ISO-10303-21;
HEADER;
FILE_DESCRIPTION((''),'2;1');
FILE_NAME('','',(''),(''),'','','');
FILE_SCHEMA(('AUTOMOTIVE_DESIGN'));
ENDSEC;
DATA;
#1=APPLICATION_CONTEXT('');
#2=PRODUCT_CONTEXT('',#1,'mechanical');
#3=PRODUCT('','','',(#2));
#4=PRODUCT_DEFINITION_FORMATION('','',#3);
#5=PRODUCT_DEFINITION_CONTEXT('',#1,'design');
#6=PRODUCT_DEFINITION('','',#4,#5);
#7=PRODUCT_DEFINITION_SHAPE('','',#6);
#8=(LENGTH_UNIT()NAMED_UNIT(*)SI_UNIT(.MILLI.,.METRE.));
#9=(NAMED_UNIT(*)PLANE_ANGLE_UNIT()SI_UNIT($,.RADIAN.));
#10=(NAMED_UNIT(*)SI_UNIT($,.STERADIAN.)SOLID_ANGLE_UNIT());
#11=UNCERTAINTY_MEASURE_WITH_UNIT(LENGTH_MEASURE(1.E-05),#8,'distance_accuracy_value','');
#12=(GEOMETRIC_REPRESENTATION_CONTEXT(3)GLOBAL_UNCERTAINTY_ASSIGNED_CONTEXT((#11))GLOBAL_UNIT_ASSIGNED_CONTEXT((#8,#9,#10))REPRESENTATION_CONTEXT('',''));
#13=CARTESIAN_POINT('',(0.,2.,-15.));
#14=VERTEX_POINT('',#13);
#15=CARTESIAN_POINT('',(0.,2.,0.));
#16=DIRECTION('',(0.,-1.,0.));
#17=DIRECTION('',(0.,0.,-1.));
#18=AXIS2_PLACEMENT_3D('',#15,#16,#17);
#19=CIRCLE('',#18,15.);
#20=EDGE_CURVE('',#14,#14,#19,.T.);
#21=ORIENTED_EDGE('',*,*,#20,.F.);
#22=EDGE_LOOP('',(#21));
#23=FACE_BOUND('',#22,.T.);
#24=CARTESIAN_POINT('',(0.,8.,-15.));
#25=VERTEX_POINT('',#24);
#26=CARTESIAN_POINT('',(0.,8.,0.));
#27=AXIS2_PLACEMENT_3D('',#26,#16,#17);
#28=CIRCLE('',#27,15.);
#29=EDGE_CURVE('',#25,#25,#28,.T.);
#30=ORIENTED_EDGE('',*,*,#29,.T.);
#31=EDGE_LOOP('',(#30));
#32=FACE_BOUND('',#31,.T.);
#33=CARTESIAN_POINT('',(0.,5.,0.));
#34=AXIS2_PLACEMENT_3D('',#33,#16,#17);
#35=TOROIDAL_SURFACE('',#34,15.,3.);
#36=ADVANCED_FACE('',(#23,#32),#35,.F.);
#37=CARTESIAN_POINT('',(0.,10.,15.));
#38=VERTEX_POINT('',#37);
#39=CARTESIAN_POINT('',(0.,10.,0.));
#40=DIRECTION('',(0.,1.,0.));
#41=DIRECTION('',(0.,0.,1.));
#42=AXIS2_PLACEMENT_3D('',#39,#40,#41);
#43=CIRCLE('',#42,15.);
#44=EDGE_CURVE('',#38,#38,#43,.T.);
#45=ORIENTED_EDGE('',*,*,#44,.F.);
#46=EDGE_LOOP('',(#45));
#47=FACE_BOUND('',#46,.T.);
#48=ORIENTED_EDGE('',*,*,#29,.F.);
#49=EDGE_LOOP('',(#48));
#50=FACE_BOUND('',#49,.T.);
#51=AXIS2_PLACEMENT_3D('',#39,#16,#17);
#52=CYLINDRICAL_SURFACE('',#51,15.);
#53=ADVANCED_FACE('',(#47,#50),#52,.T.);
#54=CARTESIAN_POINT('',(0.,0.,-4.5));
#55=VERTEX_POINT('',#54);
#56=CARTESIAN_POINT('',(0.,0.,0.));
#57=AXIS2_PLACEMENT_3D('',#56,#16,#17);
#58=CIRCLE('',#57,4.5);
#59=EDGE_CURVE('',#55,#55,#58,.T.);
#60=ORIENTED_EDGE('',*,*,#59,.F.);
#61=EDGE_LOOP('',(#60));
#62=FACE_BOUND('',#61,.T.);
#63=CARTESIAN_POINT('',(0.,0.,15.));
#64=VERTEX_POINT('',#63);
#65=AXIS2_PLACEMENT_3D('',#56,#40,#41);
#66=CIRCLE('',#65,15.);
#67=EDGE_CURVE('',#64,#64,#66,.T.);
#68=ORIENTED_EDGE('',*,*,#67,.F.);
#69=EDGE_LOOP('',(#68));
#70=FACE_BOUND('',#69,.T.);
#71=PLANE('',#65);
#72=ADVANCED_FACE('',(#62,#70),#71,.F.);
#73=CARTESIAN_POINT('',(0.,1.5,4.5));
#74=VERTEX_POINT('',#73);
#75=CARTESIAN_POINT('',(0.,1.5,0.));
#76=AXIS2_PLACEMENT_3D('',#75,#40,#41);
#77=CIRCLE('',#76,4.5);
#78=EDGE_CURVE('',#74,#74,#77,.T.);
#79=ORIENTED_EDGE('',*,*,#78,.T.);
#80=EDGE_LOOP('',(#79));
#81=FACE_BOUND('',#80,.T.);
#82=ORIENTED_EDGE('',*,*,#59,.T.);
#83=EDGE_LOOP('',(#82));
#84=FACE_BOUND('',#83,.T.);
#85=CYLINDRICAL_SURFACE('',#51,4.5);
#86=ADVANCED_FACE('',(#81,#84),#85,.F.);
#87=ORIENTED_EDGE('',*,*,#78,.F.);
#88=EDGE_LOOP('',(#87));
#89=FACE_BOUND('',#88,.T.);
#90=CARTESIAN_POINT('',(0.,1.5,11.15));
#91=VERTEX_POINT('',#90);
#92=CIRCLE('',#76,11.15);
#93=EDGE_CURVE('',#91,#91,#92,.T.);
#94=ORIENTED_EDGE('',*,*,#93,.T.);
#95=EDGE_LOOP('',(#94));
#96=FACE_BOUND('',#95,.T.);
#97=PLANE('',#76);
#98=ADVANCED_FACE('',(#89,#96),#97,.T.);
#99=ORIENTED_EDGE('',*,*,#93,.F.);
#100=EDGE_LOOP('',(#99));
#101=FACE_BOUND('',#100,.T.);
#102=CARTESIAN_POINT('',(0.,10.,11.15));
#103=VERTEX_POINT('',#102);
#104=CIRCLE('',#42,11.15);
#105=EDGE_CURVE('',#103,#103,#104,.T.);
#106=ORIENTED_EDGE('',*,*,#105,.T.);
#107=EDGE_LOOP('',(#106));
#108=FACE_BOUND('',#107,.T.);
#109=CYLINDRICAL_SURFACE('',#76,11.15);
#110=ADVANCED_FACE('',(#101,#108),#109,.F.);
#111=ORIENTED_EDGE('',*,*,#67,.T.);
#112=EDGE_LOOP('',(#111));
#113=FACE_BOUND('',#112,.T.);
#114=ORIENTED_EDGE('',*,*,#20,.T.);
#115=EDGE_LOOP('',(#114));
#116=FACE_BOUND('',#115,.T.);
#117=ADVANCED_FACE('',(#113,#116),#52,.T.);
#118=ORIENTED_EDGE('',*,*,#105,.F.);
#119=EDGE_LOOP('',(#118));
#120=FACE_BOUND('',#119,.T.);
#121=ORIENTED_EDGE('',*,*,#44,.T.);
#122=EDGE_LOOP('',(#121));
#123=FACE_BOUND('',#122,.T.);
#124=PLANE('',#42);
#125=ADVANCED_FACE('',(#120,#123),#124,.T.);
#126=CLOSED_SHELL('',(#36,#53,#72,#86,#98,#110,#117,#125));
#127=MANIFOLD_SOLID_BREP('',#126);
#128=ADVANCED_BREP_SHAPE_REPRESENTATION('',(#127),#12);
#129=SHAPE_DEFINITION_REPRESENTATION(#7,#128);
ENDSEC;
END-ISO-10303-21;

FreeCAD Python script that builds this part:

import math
import FreeCAD as App
import Part
import Sketcher

doc = App.newDocument("Part")
params = doc.addObject("Spreadsheet::Sheet", "Params")
for row, (alias, value) in enumerate([
    ("sketch1_diameter", "30 mm"),
    ("pad1_length", "10 mm"),
    ("sketch2_radius", "3 mm"),
    ("groove_angle", "360 deg"),
    ("sketch3_diameter", "22.3 mm"),
    ("pocket1_length", "8.5 mm"),
    ("sketch4_diameter", "9 mm"),
], start=1):
    params.set(f"A{row}", alias)
    params.set(f"B{row}", "=" + value)
    params.setAlias(f"B{row}", alias)

body = doc.addObject("PartDesign::Body", "Body")

# Sketch on XZ plane
sketch1 = doc.addObject("Sketcher::SketchObject", "Sketch")
body.addObject(sketch1)
sketch1.AttachmentSupport = (doc.XZ_Plane, [""])
sketch1.MapMode = "FlatFace"
sketch1.addGeometry(Part.Circle(App.Vector(0, 0, 0), App.Vector(0, 0, 1), 15), False)
sketch1.addConstraint([
    Sketcher.Constraint("Coincident", 0, 3, -1, 1),
    Sketcher.Constraint("Diameter", 0, 30.0),
])
sketch1.setExpression("Constraints[1]", "Params.sketch1_diameter")
pad1 = doc.addObject("PartDesign::Pad", "Pad")
body.addObject(pad1)
pad1.Profile = sketch1
pad1.setExpression("Length", "Params.pad1_length")
pad1.Reversed = True

# Sketch on XY plane
sketch2 = doc.addObject("Sketcher::SketchObject", "Sketch001")
body.addObject(sketch2)
sketch2.AttachmentSupport = (doc.XY_Plane, [""])
sketch2.MapMode = "FlatFace"
sketch2.addGeometry([
    Part.LineSegment(App.Vector(15, 2, 0), App.Vector(15, 8, 0)),
    Part.ArcOfCircle(Part.Circle(App.Vector(15, 5, 0), App.Vector(0, 0, 1), 3), math.radians(90), math.radians(270)),
], False)
sketch2.addConstraint([
    Sketcher.Constraint("Coincident", 0, 1, 1, 2),
    Sketcher.Constraint("Coincident", 1, 1, 0, 2),
    Sketcher.Constraint("Vertical", 0),
    Sketcher.Constraint("Vertical", 1, 3, 0, 1),
    Sketcher.Constraint("Radius", 1, 3.0),
    Sketcher.Constraint("DistanceX", -1, 1, 1, 3, 15.0),
    Sketcher.Constraint("DistanceY", -1, 1, 1, 3, 5.0),
])
sketch2.setExpression("Constraints[4]", "Params.sketch2_radius")
groove = doc.addObject("PartDesign::Groove", "Groove")
body.addObject(groove)
groove.Profile = sketch2
groove.ReferenceAxis = (sketch2, ["V_Axis"])
groove.setExpression("Angle", "Params.groove_angle")

# Sketch on XZ plane
sketch3 = doc.addObject("Sketcher::SketchObject", "Sketch002")
body.addObject(sketch3)
sketch3.AttachmentSupport = (doc.XZ_Plane, [""])
sketch3.MapMode = "FlatFace"
sketch3.AttachmentOffset = App.Placement(App.Vector(0, 0, -10), App.Rotation())
sketch3.addGeometry(Part.Circle(App.Vector(0, 0, 0), App.Vector(0, 0, 1), 11), False)
sketch3.addConstraint([
    Sketcher.Constraint("Coincident", 0, 3, -1, 1),
    Sketcher.Constraint("Diameter", 0, 22.3),
])
sketch3.setExpression("Constraints[1]", "Params.sketch3_diameter")
pocket1 = doc.addObject("PartDesign::Pocket", "Pocket")
body.addObject(pocket1)
pocket1.Profile = sketch3
pocket1.setExpression("Length", "Params.pocket1_length")
pocket1.Reversed = True

# Sketch on XZ plane
sketch4 = doc.addObject("Sketcher::SketchObject", "Sketch003")
body.addObject(sketch4)
sketch4.AttachmentSupport = (doc.XZ_Plane, [""])
sketch4.MapMode = "FlatFace"
sketch4.addGeometry(Part.Circle(App.Vector(0, 0, 0), App.Vector(0, 0, 1), 4.5), False)
sketch4.addConstraint([
    Sketcher.Constraint("Coincident", 0, 3, -1, 1),
    Sketcher.Constraint("Diameter", 0, 9.0),
])
sketch4.setExpression("Constraints[1]", "Params.sketch4_diameter")
pocket2 = doc.addObject("PartDesign::Pocket", "Pocket001")
body.addObject(pocket2)
pocket2.Profile = sketch4
pocket2.Type = "ThroughAll"

doc.recompute()
